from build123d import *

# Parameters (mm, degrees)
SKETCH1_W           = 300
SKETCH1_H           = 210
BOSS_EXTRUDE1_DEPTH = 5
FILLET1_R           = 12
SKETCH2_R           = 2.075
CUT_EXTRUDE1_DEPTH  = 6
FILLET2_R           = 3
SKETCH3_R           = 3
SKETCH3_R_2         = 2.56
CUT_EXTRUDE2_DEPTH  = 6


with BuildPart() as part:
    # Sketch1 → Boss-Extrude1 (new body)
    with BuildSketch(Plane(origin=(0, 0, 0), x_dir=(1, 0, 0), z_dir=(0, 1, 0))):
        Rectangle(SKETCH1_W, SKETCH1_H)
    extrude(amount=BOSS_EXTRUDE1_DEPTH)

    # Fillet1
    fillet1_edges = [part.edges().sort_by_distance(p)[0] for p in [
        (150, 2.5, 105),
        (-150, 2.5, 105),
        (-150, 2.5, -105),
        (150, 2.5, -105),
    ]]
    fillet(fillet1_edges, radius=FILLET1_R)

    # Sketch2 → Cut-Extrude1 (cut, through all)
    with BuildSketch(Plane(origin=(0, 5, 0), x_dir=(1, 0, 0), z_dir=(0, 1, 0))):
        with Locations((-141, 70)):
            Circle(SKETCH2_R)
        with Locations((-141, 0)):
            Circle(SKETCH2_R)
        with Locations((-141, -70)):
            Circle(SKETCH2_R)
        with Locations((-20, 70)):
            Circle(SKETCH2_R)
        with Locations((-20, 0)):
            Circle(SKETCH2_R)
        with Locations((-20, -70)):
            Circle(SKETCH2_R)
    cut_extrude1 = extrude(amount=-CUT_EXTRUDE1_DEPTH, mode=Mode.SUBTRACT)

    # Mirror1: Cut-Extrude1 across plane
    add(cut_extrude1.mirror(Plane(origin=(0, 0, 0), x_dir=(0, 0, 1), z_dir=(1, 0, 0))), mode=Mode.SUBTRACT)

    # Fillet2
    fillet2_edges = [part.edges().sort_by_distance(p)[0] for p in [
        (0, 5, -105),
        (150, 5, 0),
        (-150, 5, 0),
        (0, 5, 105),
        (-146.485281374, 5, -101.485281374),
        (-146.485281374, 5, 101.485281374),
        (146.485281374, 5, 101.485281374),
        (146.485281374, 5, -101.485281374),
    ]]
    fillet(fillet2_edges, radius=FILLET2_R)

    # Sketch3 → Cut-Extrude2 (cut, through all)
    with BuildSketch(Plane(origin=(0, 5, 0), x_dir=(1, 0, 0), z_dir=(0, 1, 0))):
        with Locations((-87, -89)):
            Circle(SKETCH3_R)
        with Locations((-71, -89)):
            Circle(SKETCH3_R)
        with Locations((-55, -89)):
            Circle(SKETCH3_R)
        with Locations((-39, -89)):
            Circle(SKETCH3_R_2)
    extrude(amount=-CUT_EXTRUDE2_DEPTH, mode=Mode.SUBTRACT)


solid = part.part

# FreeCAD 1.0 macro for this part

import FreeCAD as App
import Part
import Sketcher
Q = App.Units.Quantity


def edges_at(feature, points):
    """Names of the edges that pass closest to the given points."""
    edges = feature.Shape.Edges
    near = lambda p: min(range(len(edges)), key=lambda i: edges[i].distToShape(Part.Vertex(*p))[0])
    return sorted({f"Edge{near(p) + 1}" for p in points})

doc = App.newDocument("Part")
body = doc.addObject("PartDesign::Body", "Body")

# Sketch on XZ plane
sketch1 = body.newObject("Sketcher::SketchObject", "Sketch")
sketch1.AttachmentSupport = (doc.getObject("XZ_Plane"), [""])
sketch1.MapMode = "FlatFace"
sketch1.addGeometry(Part.LineSegment(App.Vector(-150, -105, 0), App.Vector(-150, 105, 0)), False)
sketch1.addGeometry(Part.LineSegment(App.Vector(-150, 105, 0), App.Vector(150, 105, 0)), False)
sketch1.addGeometry(Part.LineSegment(App.Vector(150, 105, 0), App.Vector(150, -105, 0)), False)
sketch1.addGeometry(Part.LineSegment(App.Vector(150, -105, 0), App.Vector(-150, -105, 0)), False)
sketch1.addConstraint(Sketcher.Constraint("Coincident", 0, 2, 1, 1))
sketch1.addConstraint(Sketcher.Constraint("Coincident", 1, 2, 2, 1))
sketch1.addConstraint(Sketcher.Constraint("Coincident", 2, 2, 3, 1))
sketch1.addConstraint(Sketcher.Constraint("Coincident", 3, 2, 0, 1))
sketch1.addConstraint(Sketcher.Constraint("Vertical", 0))
sketch1.addConstraint(Sketcher.Constraint("Horizontal", 1))
sketch1.addConstraint(Sketcher.Constraint("Vertical", 2))
sketch1.addConstraint(Sketcher.Constraint("Horizontal", 3))
sketch1.addConstraint(Sketcher.Constraint("Symmetric", 0, 2, 2, 2, -1, 1))
sketch1.addConstraint(Sketcher.Constraint("DistanceX", 1, 1, 1, 2, Q("300 mm")))
sketch1.addConstraint(Sketcher.Constraint("DistanceY", 0, 1, 0, 2, Q("210 mm")))
pad1 = body.newObject("PartDesign::Pad", "Pad")
pad1.Profile = sketch1
pad1.Length = 5
pad1.Reversed = True
doc.recompute()

fillet = body.newObject("PartDesign::Fillet", "Fillet")
fillet.Base = (pad1, edges_at(pad1, [
    (150, 2.5, 105),
    (-150, 2.5, 105),
    (-150, 2.5, -105),
    (150, 2.5, -105),
]))
fillet.Radius = 12

# Sketch on XZ plane
sketch2 = body.newObject("Sketcher::SketchObject", "Sketch001")
sketch2.AttachmentSupport = (doc.getObject("XZ_Plane"), [""])
sketch2.MapMode = "FlatFace"
sketch2.AttachmentOffset = App.Placement(App.Vector(0, 0, -5), App.Rotation())
sketch2.addGeometry(Part.Circle(App.Vector(-141, -70, 0), App.Vector(0, 0, 1), 2.1), False)
sketch2.addGeometry(Part.Circle(App.Vector(-141, 0, 0), App.Vector(0, 0, 1), 2.1), False)
sketch2.addGeometry(Part.Circle(App.Vector(-141, 70, 0), App.Vector(0, 0, 1), 2.1), False)
sketch2.addGeometry(Part.Circle(App.Vector(-20, -70, 0), App.Vector(0, 0, 1), 2.1), False)
sketch2.addGeometry(Part.Circle(App.Vector(-20, 0, 0), App.Vector(0, 0, 1), 2.1), False)
sketch2.addGeometry(Part.Circle(App.Vector(-20, 70, 0), App.Vector(0, 0, 1), 2.1), False)
sketch2.addConstraint(Sketcher.Constraint("Equal", 0, 1))
sketch2.addConstraint(Sketcher.Constraint("Equal", 1, 2))
sketch2.addConstraint(Sketcher.Constraint("Equal", 2, 3))
sketch2.addConstraint(Sketcher.Constraint("Equal", 3, 4))
sketch2.addConstraint(Sketcher.Constraint("Equal", 4, 5))
sketch2.addConstraint(Sketcher.Constraint("Symmetric", 0, 3, 2, 3, -1))
sketch2.addConstraint(Sketcher.Constraint("Symmetric", 3, 3, 5, 3, -1))
sketch2.addConstraint(Sketcher.Constraint("PointOnObject", 1, 3, -1))
sketch2.addConstraint(Sketcher.Constraint("PointOnObject", 4, 3, -1))
sketch2.addConstraint(Sketcher.Constraint("Horizontal", 0, 3, 3, 3))
sketch2.addConstraint(Sketcher.Constraint("Vertical", 0, 3, 1, 3))
sketch2.addConstraint(Sketcher.Constraint("Vertical", 3, 3, 4, 3))
sketch2.addConstraint(Sketcher.Constraint("Diameter", 0, Q("4.15 mm")))
sketch2.addConstraint(Sketcher.Constraint("DistanceX", 0, 3, -1, 1, Q("141 mm")))
sketch2.addConstraint(Sketcher.Constraint("DistanceY", 0, 3, -1, 1, Q("70 mm")))
sketch2.addConstraint(Sketcher.Constraint("DistanceX", 3, 3, -1, 1, Q("20 mm")))
pocket1 = body.newObject("PartDesign::Pocket", "Pocket")
pocket1.Profile = sketch2
pocket1.Type = "ThroughAll"
pocket1.Reversed = True
doc.recompute()

mirrored = body.newObject("PartDesign::Mirrored", "Mirrored")
mirrored.Originals = [pocket1]
mirrored.MirrorPlane = (doc.getObject("YZ_Plane"), [""])
body.Tip = mirrored
doc.recompute()

fillet2 = body.newObject("PartDesign::Fillet", "Fillet001")
fillet2.Base = (mirrored, edges_at(mirrored, [
    (0, 5, -105),
    (150, 5, 0),
    (-150, 5, 0),
    (0, 5, 105),
    (-146.485, 5, -101.485),
    (-146.485, 5, 101.485),
    (146.485, 5, 101.485),
    (146.485, 5, -101.485),
]))
fillet2.Radius = 3

# Sketch on XZ plane
sketch3 = body.newObject("Sketcher::SketchObject", "Sketch002")
sketch3.AttachmentSupport = (doc.getObject("XZ_Plane"), [""])
sketch3.MapMode = "FlatFace"
sketch3.AttachmentOffset = App.Placement(App.Vector(0, 0, -5), App.Rotation())
sketch3.addGeometry(Part.Circle(App.Vector(-87, 89, 0), App.Vector(0, 0, 1), 3), False)
sketch3.addGeometry(Part.Circle(App.Vector(-71, 89, 0), App.Vector(0, 0, 1), 3), False)
sketch3.addGeometry(Part.Circle(App.Vector(-55, 89, 0), App.Vector(0, 0, 1), 3), False)
sketch3.addGeometry(Part.Circle(App.Vector(-39, 89, 0), App.Vector(0, 0, 1), 2.6), False)
sketch3.addConstraint(Sketcher.Constraint("Equal", 0, 1))
sketch3.addConstraint(Sketcher.Constraint("Equal", 1, 2))
sketch3.addConstraint(Sketcher.Constraint("Horizontal", 0, 3, 1, 3))
sketch3.addConstraint(Sketcher.Constraint("Horizontal", 1, 3, 2, 3))
sketch3.addConstraint(Sketcher.Constraint("Horizontal", 2, 3, 3, 3))
sketch3.addConstraint(Sketcher.Constraint("Diameter", 0, Q("6 mm")))
sketch3.addConstraint(Sketcher.Constraint("Diameter", 3, Q("5.12 mm")))
sketch3.addConstraint(Sketcher.Constraint("DistanceX", 0, 3, -1, 1, Q("87 mm")))
sketch3.addConstraint(Sketcher.Constraint("DistanceY", -1, 1, 0, 3, Q("89 mm")))
sketch3.addConstraint(Sketcher.Constraint("DistanceX", 1, 3, -1, 1, Q("71 mm")))
sketch3.addConstraint(Sketcher.Constraint("DistanceX", 2, 3, -1, 1, Q("55 mm")))
sketch3.addConstraint(Sketcher.Constraint("DistanceX", 3, 3, -1, 1, Q("39 mm")))
pocket2 = body.newObject("PartDesign::Pocket", "Pocket001")
pocket2.Profile = sketch3
pocket2.Type = "ThroughAll"
pocket2.Reversed = True

doc.recompute()
